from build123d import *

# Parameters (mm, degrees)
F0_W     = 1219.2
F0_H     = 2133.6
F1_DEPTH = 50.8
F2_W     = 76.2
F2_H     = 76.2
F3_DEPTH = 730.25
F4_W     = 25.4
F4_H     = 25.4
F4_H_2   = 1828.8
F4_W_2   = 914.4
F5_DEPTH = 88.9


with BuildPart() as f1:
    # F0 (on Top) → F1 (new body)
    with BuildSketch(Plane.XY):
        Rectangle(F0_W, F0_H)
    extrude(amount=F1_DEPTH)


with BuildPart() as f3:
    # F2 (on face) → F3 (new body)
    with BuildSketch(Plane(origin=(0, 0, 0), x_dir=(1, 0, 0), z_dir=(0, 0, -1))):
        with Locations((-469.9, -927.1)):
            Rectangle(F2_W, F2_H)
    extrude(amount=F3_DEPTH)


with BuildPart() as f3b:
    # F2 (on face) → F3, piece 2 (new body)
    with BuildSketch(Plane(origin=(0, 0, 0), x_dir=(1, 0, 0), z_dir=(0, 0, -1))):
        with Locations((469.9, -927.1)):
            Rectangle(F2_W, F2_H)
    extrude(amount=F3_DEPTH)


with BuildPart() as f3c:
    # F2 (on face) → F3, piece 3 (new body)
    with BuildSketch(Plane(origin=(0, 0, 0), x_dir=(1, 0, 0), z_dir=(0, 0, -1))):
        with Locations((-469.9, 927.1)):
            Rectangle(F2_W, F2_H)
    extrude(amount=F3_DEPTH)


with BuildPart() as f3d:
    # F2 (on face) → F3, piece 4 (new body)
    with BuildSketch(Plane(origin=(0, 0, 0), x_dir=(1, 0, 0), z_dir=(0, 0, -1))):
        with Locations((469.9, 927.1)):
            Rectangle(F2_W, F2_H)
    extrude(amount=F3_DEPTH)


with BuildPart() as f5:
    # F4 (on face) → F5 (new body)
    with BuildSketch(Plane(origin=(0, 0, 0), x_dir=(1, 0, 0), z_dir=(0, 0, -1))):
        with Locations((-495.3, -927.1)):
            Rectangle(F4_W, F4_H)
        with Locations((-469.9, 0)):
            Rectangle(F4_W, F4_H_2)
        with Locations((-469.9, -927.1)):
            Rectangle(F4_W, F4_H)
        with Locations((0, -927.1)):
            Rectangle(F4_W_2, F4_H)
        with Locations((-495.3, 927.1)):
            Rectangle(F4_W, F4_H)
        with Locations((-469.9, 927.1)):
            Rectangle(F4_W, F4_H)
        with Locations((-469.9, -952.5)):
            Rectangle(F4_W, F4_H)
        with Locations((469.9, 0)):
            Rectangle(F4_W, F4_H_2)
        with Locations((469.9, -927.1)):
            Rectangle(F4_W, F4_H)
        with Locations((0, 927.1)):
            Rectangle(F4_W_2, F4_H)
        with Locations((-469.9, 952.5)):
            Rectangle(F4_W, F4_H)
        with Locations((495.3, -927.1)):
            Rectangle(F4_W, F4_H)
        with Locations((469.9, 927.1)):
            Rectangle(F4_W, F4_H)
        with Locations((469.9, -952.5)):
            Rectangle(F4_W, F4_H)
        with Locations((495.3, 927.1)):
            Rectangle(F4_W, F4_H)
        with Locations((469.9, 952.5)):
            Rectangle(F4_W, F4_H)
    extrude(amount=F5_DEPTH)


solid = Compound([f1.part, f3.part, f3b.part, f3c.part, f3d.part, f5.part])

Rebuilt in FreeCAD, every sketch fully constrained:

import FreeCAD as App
import Part
import Sketcher
from FreeCAD import Vector
Q = App.Units.Quantity

doc = App.newDocument("Part")
body = doc.addObject("PartDesign::Body", "Body")

sketch1 = doc.addObject("Sketcher::SketchObject", "Sketch")
body.addObject(sketch1)
sketch1.AttachmentSupport = (doc.XY_Plane, [""])
sketch1.MapMode = "FlatFace"
sketch1.addGeometry([
    Part.LineSegment(Vector(-610, 1067, 0), Vector(-610, -1067, 0)),
    Part.LineSegment(Vector(-610, -1067, 0), Vector(610, -1067, 0)),
    Part.LineSegment(Vector(610, -1067, 0), Vector(610, 1067, 0)),
    Part.LineSegment(Vector(610, 1067, 0), Vector(-610, 1067, 0)),
], False)
sketch1.addConstraint([
    Sketcher.Constraint("Coincident", 0, 2, 1, 1),
    Sketcher.Constraint("Coincident", 1, 2, 2, 1),
    Sketcher.Constraint("Coincident", 2, 2, 3, 1),
    Sketcher.Constraint("Coincident", 3, 2, 0, 1),
    Sketcher.Constraint("Vertical", 0),
    Sketcher.Constraint("Horizontal", 1),
    Sketcher.Constraint("Vertical", 2),
    Sketcher.Constraint("Horizontal", 3),
    Sketcher.Constraint("Symmetric", 0, 2, 2, 2, -1, 1),
    Sketcher.Constraint("DistanceX", 1, 1, 1, 2, Q("48 in")),
    Sketcher.Constraint("DistanceY", 0, 2, 0, 1, Q("84 in")),
])
pad1 = doc.addObject("PartDesign::Pad", "Pad")
body.addObject(pad1)
pad1.Profile = sketch1
pad1.Length = Q("2 in")
body2 = doc.addObject("PartDesign::Body", "Body001")

sketch2 = doc.addObject("Sketcher::SketchObject", "Sketch001")
body2.addObject(sketch2)
sketch2.AttachmentSupport = (doc.getObject("XY_Plane001"), [""])
sketch2.MapMode = "FlatFace"
sketch2.addGeometry([
    Part.LineSegment(Vector(-508, 889, 0), Vector(-508, 965, 0)),
    Part.LineSegment(Vector(-508, 965, 0), Vector(-432, 965, 0)),
    Part.LineSegment(Vector(-432, 965, 0), Vector(-432, 889, 0)),
    Part.LineSegment(Vector(-432, 889, 0), Vector(-508, 889, 0)),
], False)
sketch2.addConstraint([
    Sketcher.Constraint("Coincident", 0, 2, 1, 1),
    Sketcher.Constraint("Coincident", 1, 2, 2, 1),
    Sketcher.Constraint("Coincident", 2, 2, 3, 1),
    Sketcher.Constraint("Coincident", 3, 2, 0, 1),
    Sketcher.Constraint("Vertical", 0),
    Sketcher.Constraint("Horizontal", 1),
    Sketcher.Constraint("Vertical", 2),
    Sketcher.Constraint("Horizontal", 3),
    Sketcher.Constraint("Equal", 3, 0),
    Sketcher.Constraint("DistanceX", 1, 1, 1, 2, Q("3 in")),
    Sketcher.Constraint("DistanceX", 0, 2, -1, 1, Q("20 in")),
    Sketcher.Constraint("DistanceY", -1, 1, 0, 2, Q("38 in")),
])
pad2 = doc.addObject("PartDesign::Pad", "Pad001")
body2.addObject(pad2)
pad2.Profile = sketch2
pad2.Length = Q("28.75 in")
pad2.Reversed = True
body3 = doc.addObject("PartDesign::Body", "Body002")

sketch3 = doc.addObject("Sketcher::SketchObject", "Sketch002")
body3.addObject(sketch3)
sketch3.AttachmentSupport = (doc.getObject("XY_Plane002"), [""])
sketch3.MapMode = "FlatFace"
sketch3.addGeometry([
    Part.LineSegment(Vector(432, 889, 0), Vector(432, 965, 0)),
    Part.LineSegment(Vector(432, 965, 0), Vector(508, 965, 0)),
    Part.LineSegment(Vector(508, 965, 0), Vector(508, 889, 0)),
    Part.LineSegment(Vector(508, 889, 0), Vector(432, 889, 0)),
], False)
sketch3.addConstraint([
    Sketcher.Constraint("Coincident", 0, 2, 1, 1),
    Sketcher.Constraint("Coincident", 1, 2, 2, 1),
    Sketcher.Constraint("Coincident", 2, 2, 3, 1),
    Sketcher.Constraint("Coincident", 3, 2, 0, 1),
    Sketcher.Constraint("Vertical", 0),
    Sketcher.Constraint("Horizontal", 1),
    Sketcher.Constraint("Vertical", 2),
    Sketcher.Constraint("Horizontal", 3),
    Sketcher.Constraint("Equal", 3, 0),
    Sketcher.Constraint("DistanceX", 1, 1, 1, 2, Q("3 in")),
    Sketcher.Constraint("DistanceX", -1, 1, 0, 2, Q("17 in")),
    Sketcher.Constraint("DistanceY", -1, 1, 0, 2, Q("38 in")),
])
pad3 = doc.addObject("PartDesign::Pad", "Pad002")
body3.addObject(pad3)
pad3.Profile = sketch3
pad3.Length = Q("28.75 in")
pad3.Reversed = True
body4 = doc.addObject("PartDesign::Body", "Body003")

sketch4 = doc.addObject("Sketcher::SketchObject", "Sketch003")
body4.addObject(sketch4)
sketch4.AttachmentSupport = (doc.getObject("XY_Plane003"), [""])
sketch4.MapMode = "FlatFace"
sketch4.addGeometry([
    Part.LineSegment(Vector(-508, -965, 0), Vector(-508, -889, 0)),
    Part.LineSegment(Vector(-508, -889, 0), Vector(-432, -889, 0)),
    Part.LineSegment(Vector(-432, -889, 0), Vector(-432, -965, 0)),
    Part.LineSegment(Vector(-432, -965, 0), Vector(-508, -965, 0)),
], False)
sketch4.addConstraint([
    Sketcher.Constraint("Coincident", 0, 2, 1, 1),
    Sketcher.Constraint("Coincident", 1, 2, 2, 1),
    Sketcher.Constraint("Coincident", 2, 2, 3, 1),
    Sketcher.Constraint("Coincident", 3, 2, 0, 1),
    Sketcher.Constraint("Vertical", 0),
    Sketcher.Constraint("Horizontal", 1),
    Sketcher.Constraint("Vertical", 2),
    Sketcher.Constraint("Horizontal", 3),
    Sketcher.Constraint("Equal", 3, 0),
    Sketcher.Constraint("DistanceX", 1, 1, 1, 2, Q("3 in")),
    Sketcher.Constraint("DistanceX", 0, 2, -1, 1, Q("20 in")),
    Sketcher.Constraint("DistanceY", 0, 2, -1, 1, Q("35 in")),
])
pad4 = doc.addObject("PartDesign::Pad", "Pad003")
body4.addObject(pad4)
pad4.Profile = sketch4
pad4.Length = Q("28.75 in")
pad4.Reversed = True
body5 = doc.addObject("PartDesign::Body", "Body004")

sketch5 = doc.addObject("Sketcher::SketchObject", "Sketch004")
body5.addObject(sketch5)
sketch5.AttachmentSupport = (doc.getObject("XY_Plane004"), [""])
sketch5.MapMode = "FlatFace"
sketch5.addGeometry([
    Part.LineSegment(Vector(432, -965, 0), Vector(432, -889, 0)),
    Part.LineSegment(Vector(432, -889, 0), Vector(508, -889, 0)),
    Part.LineSegment(Vector(508, -889, 0), Vector(508, -965, 0)),
    Part.LineSegment(Vector(508, -965, 0), Vector(432, -965, 0)),
], False)
sketch5.addConstraint([
    Sketcher.Constraint("Coincident", 0, 2, 1, 1),
    Sketcher.Constraint("Coincident", 1, 2, 2, 1),
    Sketcher.Constraint("Coincident", 2, 2, 3, 1),
    Sketcher.Constraint("Coincident", 3, 2, 0, 1),
    Sketcher.Constraint("Vertical", 0),
    Sketcher.Constraint("Horizontal", 1),
    Sketcher.Constraint("Vertical", 2),
    Sketcher.Constraint("Horizontal", 3),
    Sketcher.Constraint("Equal", 3, 0),
    Sketcher.Constraint("DistanceX", 1, 1, 1, 2, Q("3 in")),
    Sketcher.Constraint("DistanceX", -1, 1, 0, 2, Q("17 in")),
    Sketcher.Constraint("DistanceY", 0, 2, -1, 1, Q("35 in")),
])
pad5 = doc.addObject("PartDesign::Pad", "Pad004")
body5.addObject(pad5)
pad5.Profile = sketch5
pad5.Length = Q("28.75 in")
pad5.Reversed = True
body6 = doc.addObject("PartDesign::Body", "Body005")

sketch6 = doc.addObject("Sketcher::SketchObject", "Sketch005")
body6.addObject(sketch6)
sketch6.AttachmentSupport = (doc.getObject("XY_Plane005"), [""])
sketch6.MapMode = "FlatFace"
sketch6.addGeometry([
    Part.LineSegment(Vector(483, 914, 0), Vector(483, -914, 0)),
    Part.LineSegment(Vector(483, -914, 0), Vector(508, -914, 0)),
    Part.LineSegment(Vector(508, -914, 0), Vector(508, -940, 0)),
    Part.LineSegment(Vector(508, -940, 0), Vector(483, -940, 0)),
    Part.LineSegment(Vector(483, -940, 0), Vector(483, -965, 0)),
    Part.LineSegment(Vector(483, -965, 0), Vector(457, -965, 0)),
    Part.LineSegment(Vector(457, -965, 0), Vector(457, -940, 0)),
    Part.LineSegment(Vector(457, -940, 0), Vector(-457, -940, 0)),
    Part.LineSegment(Vector(-457, -940, 0), Vector(-457, -965, 0)),
    Part.LineSegment(Vector(-457, -965, 0), Vector(-483, -965, 0)),
    Part.LineSegment(Vector(-483, -965, 0), Vector(-483, -940, 0)),
    Part.LineSegment(Vector(-483, -940, 0), Vector(-508, -940, 0)),
    Part.LineSegment(Vector(-508, -940, 0), Vector(-508, -914, 0)),
    Part.LineSegment(Vector(-508, -914, 0), Vector(-483, -914, 0)),
    Part.LineSegment(Vector(-483, -914, 0), Vector(-483, 914, 0)),
    Part.LineSegment(Vector(-483, 914, 0), Vector(-508, 914, 0)),
    Part.LineSegment(Vector(-508, 914, 0), Vector(-508, 940, 0)),
    Part.LineSegment(Vector(-508, 940, 0), Vector(-483, 940, 0)),
    Part.LineSegment(Vector(-483, 940, 0), Vector(-483, 965, 0)),
    Part.LineSegment(Vector(-483, 965, 0), Vector(-457, 965, 0)),
    Part.LineSegment(Vector(-457, 965, 0), Vector(-457, 940, 0)),
    Part.LineSegment(Vector(-457, 940, 0), Vector(457, 940, 0)),
    Part.LineSegment(Vector(457, 940, 0), Vector(457, 965, 0)),
    Part.LineSegment(Vector(457, 965, 0), Vector(483, 965, 0)),
    Part.LineSegment(Vector(483, 965, 0), Vector(483, 940, 0)),
    Part.LineSegment(Vector(483, 940, 0), Vector(508, 940, 0)),
    Part.LineSegment(Vector(508, 940, 0), Vector(508, 914, 0)),
    Part.LineSegment(Vector(508, 914, 0), Vector(483, 914, 0)),
    Part.LineSegment(Vector(457, -914, 0), Vector(457, 914, 0)),
    Part.LineSegment(Vector(457, 914, 0), Vector(-457, 914, 0)),
    Part.LineSegment(Vector(-457, 914, 0), Vector(-457, -914, 0)),
    Part.LineSegment(Vector(-457, -914, 0), Vector(457, -914, 0)),
], False)
sketch6.addConstraint([
    Sketcher.Constraint("Coincident", 0, 2, 1, 1),
    Sketcher.Constraint("Coincident", 1, 2, 2, 1),
    Sketcher.Constraint("Coincident", 2, 2, 3, 1),
    Sketcher.Constraint("Coincident", 3, 2, 4, 1),
    Sketcher.Constraint("Coincident", 4, 2, 5, 1),
    Sketcher.Constraint("Coincident", 5, 2, 6, 1),
    Sketcher.Constraint("Coincident", 6, 2, 7, 1),
    Sketcher.Constraint("Coincident", 7, 2, 8, 1),
    Sketcher.Constraint("Coincident", 8, 2, 9, 1),
    Sketcher.Constraint("Coincident", 9, 2, 10, 1),
    Sketcher.Constraint("Coincident", 10, 2, 11, 1),
    Sketcher.Constraint("Coincident", 11, 2, 12, 1),
    Sketcher.Constraint("Coincident", 12, 2, 13, 1),
    Sketcher.Constraint("Coincident", 13, 2, 14, 1),
    Sketcher.Constraint("Coincident", 14, 2, 15, 1),
    Sketcher.Constraint("Coincident", 15, 2, 16, 1),
    Sketcher.Constraint("Coincident", 16, 2, 17, 1),
    Sketcher.Constraint("Coincident", 17, 2, 18, 1),
    Sketcher.Constraint("Coincident", 18, 2, 19, 1),
    Sketcher.Constraint("Coincident", 19, 2, 20, 1),
    Sketcher.Constraint("Coincident", 20, 2, 21, 1),
    Sketcher.Constraint("Coincident", 21, 2, 22, 1),
    Sketcher.Constraint("Coincident", 22, 2, 23, 1),
    Sketcher.Constraint("Coincident", 23, 2, 24, 1),
    Sketcher.Constraint("Coincident", 24, 2, 25, 1),
    Sketcher.Constraint("Coincident", 25, 2, 26, 1),
    Sketcher.Constraint("Coincident", 26, 2, 27, 1),
    Sketcher.Constraint("Coincident", 27, 2, 0, 1),
    Sketcher.Constraint("Coincident", 28, 2, 29, 1),
    Sketcher.Constraint("Coincident", 29, 2, 30, 1),
    Sketcher.Constraint("Coincident", 30, 2, 31, 1),
    Sketcher.Constraint("Coincident", 31, 2, 28, 1),
    Sketcher.Constraint("Vertical", 0),
    Sketcher.Constraint("Horizontal", 1),
    Sketcher.Constraint("Vertical", 2),
    Sketcher.Constraint("Horizontal", 3),
    Sketcher.Constraint("Vertical", 4),
    Sketcher.Constraint("Horizontal", 5),
    Sketcher.Constraint("Vertical", 6),
    Sketcher.Constraint("Horizontal", 7),
    Sketcher.Constraint("Vertical", 8),
    Sketcher.Constraint("Horizontal", 9),
    Sketcher.Constraint("Vertical", 10),
    Sketcher.Constraint("Horizontal", 11),
    Sketcher.Constraint("Vertical", 12),
    Sketcher.Constraint("Horizontal", 13),
    Sketcher.Constraint("Vertical", 14),
    Sketcher.Constraint("Horizontal", 15),
    Sketcher.Constraint("Vertical", 16),
    Sketcher.Constraint("Horizontal", 17),
    Sketcher.Constraint("Vertical", 18),
    Sketcher.Constraint("Horizontal", 19),
    Sketcher.Constraint("Vertical", 20),
    Sketcher.Constraint("Horizontal", 21),
    Sketcher.Constraint("Vertical", 22),
    Sketcher.Constraint("Horizontal", 23),
    Sketcher.Constraint("Vertical", 24),
    Sketcher.Constraint("Horizontal", 25),
    Sketcher.Constraint("Vertical", 26),
    Sketcher.Constraint("Horizontal", 27),
    Sketcher.Constraint("Vertical", 28),
    Sketcher.Constraint("Horizontal", 29),
    Sketcher.Constraint("Vertical", 30),
    Sketcher.Constraint("Horizontal", 31),
    Sketcher.Constraint("Symmetric", 0, 2, 14, 2, -1, 1),
    Sketcher.Constraint("Symmetric", 2, 2, 16, 2, -1, 1),
    Sketcher.Constraint("Symmetric", 4, 2, 18, 2, -1, 1),
    Sketcher.Constraint("Symmetric", 6, 2, 20, 2, -1, 1),
    Sketcher.Constraint("Symmetric", 8, 2, 22, 2, -1, 1),
    Sketcher.Constraint("Symmetric", 10, 2, 24, 2, -1, 1),
    Sketcher.Constraint("Symmetric", 12, 2, 26, 2, -1, 1),
    Sketcher.Constraint("Symmetric", 28, 2, 30, 2, -1, 1),
    Sketcher.Constraint("Symmetric", 5, 2, 8, 2, -2),
    Sketcher.Constraint("Symmetric", 3, 2, 10, 2, -2),
    Sketcher.Constraint("Symmetric", 1, 2, 12, 2, -2),
    Sketcher.Constraint("Horizontal", 3, 2, 6, 2),
    Sketcher.Constraint("Horizontal", 27, 2, 28, 2),
    Sketcher.Constraint("Vertical", 0, 2, 3, 2),
    Sketcher.Constraint("Vertical", 22, 2, 28, 2),
    Sketcher.Constraint("Equal", 3, 5),
    Sketcher.Constraint("Equal", 27, 2),
    Sketcher.Constraint("Equal", 2, 4),
    Sketcher.Constraint("DistanceX", 1, 1, 1, 2, Q("1 in")),
    Sketcher.Constraint("DistanceX", 7, 2, 7, 1, Q("36 in")),
    Sketcher.Constraint("DistanceY", 0, 2, 0, 1, Q("72 in")),
])
pad6 = doc.addObject("PartDesign::Pad", "Pad005")
body6.addObject(pad6)
pad6.Profile = sketch6
pad6.Length = Q("3.5 in")
pad6.Reversed = True

doc.recompute()
